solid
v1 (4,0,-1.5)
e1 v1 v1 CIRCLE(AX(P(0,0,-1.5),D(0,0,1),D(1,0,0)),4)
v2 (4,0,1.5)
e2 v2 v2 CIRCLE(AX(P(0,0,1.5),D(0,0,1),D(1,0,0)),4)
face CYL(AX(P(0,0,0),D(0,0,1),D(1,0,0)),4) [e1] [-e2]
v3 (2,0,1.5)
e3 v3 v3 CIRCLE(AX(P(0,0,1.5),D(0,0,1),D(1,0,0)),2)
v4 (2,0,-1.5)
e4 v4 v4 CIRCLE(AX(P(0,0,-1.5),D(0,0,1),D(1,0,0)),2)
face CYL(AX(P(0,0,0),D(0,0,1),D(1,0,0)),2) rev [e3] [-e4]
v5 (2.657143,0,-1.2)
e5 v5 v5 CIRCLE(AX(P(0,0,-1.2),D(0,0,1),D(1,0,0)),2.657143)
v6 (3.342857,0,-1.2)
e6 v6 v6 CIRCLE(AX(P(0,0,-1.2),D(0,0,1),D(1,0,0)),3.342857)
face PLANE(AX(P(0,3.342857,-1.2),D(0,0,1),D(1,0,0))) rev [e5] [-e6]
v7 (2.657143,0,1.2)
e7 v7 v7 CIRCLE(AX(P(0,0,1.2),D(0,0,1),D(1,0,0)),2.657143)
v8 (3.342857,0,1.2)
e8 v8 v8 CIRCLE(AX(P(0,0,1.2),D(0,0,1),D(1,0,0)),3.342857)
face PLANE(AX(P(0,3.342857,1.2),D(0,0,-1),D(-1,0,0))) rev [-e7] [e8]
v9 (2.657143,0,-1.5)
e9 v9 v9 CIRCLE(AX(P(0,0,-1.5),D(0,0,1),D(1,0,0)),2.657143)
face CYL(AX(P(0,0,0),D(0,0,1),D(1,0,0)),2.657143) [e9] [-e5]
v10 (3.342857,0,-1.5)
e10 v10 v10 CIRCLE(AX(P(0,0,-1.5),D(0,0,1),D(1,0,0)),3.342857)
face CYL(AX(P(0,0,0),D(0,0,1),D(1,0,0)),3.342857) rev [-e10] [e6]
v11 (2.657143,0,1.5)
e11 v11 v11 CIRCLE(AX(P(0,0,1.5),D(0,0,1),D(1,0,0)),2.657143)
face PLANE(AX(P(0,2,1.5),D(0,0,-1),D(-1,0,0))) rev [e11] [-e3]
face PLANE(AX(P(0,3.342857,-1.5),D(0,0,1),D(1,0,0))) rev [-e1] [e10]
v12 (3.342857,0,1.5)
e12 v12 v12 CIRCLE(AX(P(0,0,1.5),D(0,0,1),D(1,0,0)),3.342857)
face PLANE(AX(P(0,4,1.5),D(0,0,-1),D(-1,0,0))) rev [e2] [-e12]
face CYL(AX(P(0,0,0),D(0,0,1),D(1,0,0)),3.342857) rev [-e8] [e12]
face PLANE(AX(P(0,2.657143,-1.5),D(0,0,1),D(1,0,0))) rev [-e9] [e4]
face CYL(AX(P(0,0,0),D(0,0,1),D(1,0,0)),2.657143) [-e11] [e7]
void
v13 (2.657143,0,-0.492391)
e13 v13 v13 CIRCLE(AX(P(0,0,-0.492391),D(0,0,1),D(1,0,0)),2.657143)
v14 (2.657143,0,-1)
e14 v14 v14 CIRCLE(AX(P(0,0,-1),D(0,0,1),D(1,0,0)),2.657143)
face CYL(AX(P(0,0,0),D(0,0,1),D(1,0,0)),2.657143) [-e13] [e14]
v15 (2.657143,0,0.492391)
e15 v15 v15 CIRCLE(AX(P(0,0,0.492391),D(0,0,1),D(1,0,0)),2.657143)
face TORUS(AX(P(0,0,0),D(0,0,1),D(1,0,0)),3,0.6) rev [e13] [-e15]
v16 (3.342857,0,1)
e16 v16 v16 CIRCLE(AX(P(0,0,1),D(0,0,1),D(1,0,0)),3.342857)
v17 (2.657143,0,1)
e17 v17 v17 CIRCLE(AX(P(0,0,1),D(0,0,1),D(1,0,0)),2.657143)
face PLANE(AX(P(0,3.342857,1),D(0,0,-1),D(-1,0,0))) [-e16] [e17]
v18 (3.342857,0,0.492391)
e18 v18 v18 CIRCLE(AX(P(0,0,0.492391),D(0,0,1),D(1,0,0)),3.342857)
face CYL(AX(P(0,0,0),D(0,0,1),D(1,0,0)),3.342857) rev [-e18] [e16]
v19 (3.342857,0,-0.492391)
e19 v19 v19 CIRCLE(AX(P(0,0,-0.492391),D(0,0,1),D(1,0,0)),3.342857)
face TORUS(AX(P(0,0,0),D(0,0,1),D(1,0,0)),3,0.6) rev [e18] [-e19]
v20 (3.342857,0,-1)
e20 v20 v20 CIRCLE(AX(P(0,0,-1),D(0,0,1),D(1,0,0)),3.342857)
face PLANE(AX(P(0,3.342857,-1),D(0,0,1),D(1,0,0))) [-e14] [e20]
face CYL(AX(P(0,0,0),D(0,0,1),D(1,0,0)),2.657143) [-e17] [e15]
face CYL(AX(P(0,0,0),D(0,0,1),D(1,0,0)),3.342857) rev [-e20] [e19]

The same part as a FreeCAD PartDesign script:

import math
import FreeCAD as App
import Part
import Sketcher
Q = App.Units.Quantity

doc = App.newDocument("Part")
body = doc.addObject("PartDesign::Body", "Body")

sketch1 = doc.addObject("Sketcher::SketchObject", "Sketch")
body.addObject(sketch1)
sketch1.AttachmentSupport = (doc.YZ_Plane, [""])
sketch1.MapMode = "FlatFace"
sketch1.addGeometry([
    Part.LineSegment(App.Vector(2, 1.5, 0), App.Vector(2, -1.5, 0)),
    Part.LineSegment(App.Vector(2, -1.5, 0), App.Vector(2.66, -1.5, 0)),
    Part.LineSegment(App.Vector(2.66, -1.5, 0), App.Vector(2.66, -1.2, 0)),
    Part.LineSegment(App.Vector(2.66, -1.2, 0), App.Vector(3.34, -1.2, 0)),
    Part.LineSegment(App.Vector(3.34, -1.2, 0), App.Vector(3.34, -1.5, 0)),
    Part.LineSegment(App.Vector(3.34, -1.5, 0), App.Vector(4, -1.5, 0)),
    Part.LineSegment(App.Vector(4, -1.5, 0), App.Vector(4, 1.5, 0)),
    Part.LineSegment(App.Vector(4, 1.5, 0), App.Vector(3.34, 1.5, 0)),
    Part.LineSegment(App.Vector(3.34, 1.5, 0), App.Vector(3.34, 1.2, 0)),
    Part.LineSegment(App.Vector(3.34, 1.2, 0), App.Vector(2.66, 1.2, 0)),
    Part.LineSegment(App.Vector(2.66, 1.2, 0), App.Vector(2.66, 1.5, 0)),
    Part.LineSegment(App.Vector(2.66, 1.5, 0), App.Vector(2, 1.5, 0)),
    Part.LineSegment(App.Vector(3.34, -0.49, 0), App.Vector(3.34, -1, 0)),
    Part.LineSegment(App.Vector(3.34, -1, 0), App.Vector(2.66, -1, 0)),
    Part.LineSegment(App.Vector(2.66, -1, 0), App.Vector(2.66, -0.49, 0)),
    Part.ArcOfCircle(Part.Circle(App.Vector(3, 0, 0), App.Vector(0, 0, 1), 0.6), math.radians(125), math.radians(235)),
    Part.LineSegment(App.Vector(2.66, 0.49, 0), App.Vector(2.66, 1, 0)),
    Part.LineSegment(App.Vector(2.66, 1, 0), App.Vector(3.34, 1, 0)),
    Part.LineSegment(App.Vector(3.34, 1, 0), App.Vector(3.34, 0.49, 0)),
    Part.ArcOfCircle(Part.Circle(App.Vector(3, 0, 0), App.Vector(0, 0, 1), 0.6), math.radians(-55), math.radians(55)),
], False)
sketch1.addConstraint([
    Sketcher.Constraint("Coincident", 0, 2, 1, 1),
    Sketcher.Constraint("Coincident", 1, 2, 2, 1),
    Sketcher.Constraint("Coincident", 2, 2, 3, 1),
    Sketcher.Constraint("Coincident", 3, 2, 4, 1),
    Sketcher.Constraint("Coincident", 4, 2, 5, 1),
    Sketcher.Constraint("Coincident", 5, 2, 6, 1),
    Sketcher.Constraint("Coincident", 6, 2, 7, 1),
    Sketcher.Constraint("Coincident", 7, 2, 8, 1),
    Sketcher.Constraint("Coincident", 8, 2, 9, 1),
    Sketcher.Constraint("Coincident", 9, 2, 10, 1),
    Sketcher.Constraint("Coincident", 10, 2, 11, 1),
    Sketcher.Constraint("Coincident", 11, 2, 0, 1),
    Sketcher.Constraint("Coincident", 12, 2, 13, 1),
    Sketcher.Constraint("Coincident", 13, 2, 14, 1),
    Sketcher.Constraint("Coincident", 14, 2, 15, 2),
    Sketcher.Constraint("Coincident", 15, 1, 16, 1),
    Sketcher.Constraint("Coincident", 16, 2, 17, 1),
    Sketcher.Constraint("Coincident", 17, 2, 18, 1),
    Sketcher.Constraint("Coincident", 18, 2, 19, 2),
    Sketcher.Constraint("Coincident", 19, 1, 12, 1),
    Sketcher.Constraint("Vertical", 0),
    Sketcher.Constraint("Horizontal", 1),
    Sketcher.Constraint("Vertical", 2),
    Sketcher.Constraint("Horizontal", 3),
    Sketcher.Constraint("Vertical", 4),
    Sketcher.Constraint("Horizontal", 5),
    Sketcher.Constraint("Vertical", 6),
    Sketcher.Constraint("Horizontal", 7),
    Sketcher.Constraint("Vertical", 8),
    Sketcher.Constraint("Horizontal", 9),
    Sketcher.Constraint("Vertical", 10),
    Sketcher.Constraint("Horizontal", 11),
    Sketcher.Constraint("Vertical", 12),
    Sketcher.Constraint("Horizontal", 13),
    Sketcher.Constraint("Vertical", 14),
    Sketcher.Constraint("Vertical", 16),
    Sketcher.Constraint("Horizontal", 17),
    Sketcher.Constraint("Vertical", 18),
    Sketcher.Constraint("Coincident", 19, 3, 15, 3),
    Sketcher.Constraint("Equal", 15, 19),
    Sketcher.Constraint("Symmetric", 4, 2, 7, 2, -1),
    Sketcher.Constraint("Symmetric", 2, 2, 9, 2, -1),
    Sketcher.Constraint("Symmetric", 14, 2, 15, 1, -1),
    Sketcher.Constraint("Symmetric", 12, 2, 17, 2, -1),
    Sketcher.Constraint("Horizontal", 1, 2, 4, 2),
    Sketcher.Constraint("Horizontal", 7, 2, 10, 2),
    Sketcher.Constraint("Horizontal", 15, 1, 18, 2),
    Sketcher.Constraint("Vertical", 8, 2, 12, 2),
    Sketcher.Constraint("Vertical", 10, 2, 13, 2),
    Sketcher.Constraint("Equal", 1, 5),
    Sketcher.Constraint("Radius", 15, Q("0.6 mm")),
    Sketcher.Constraint("DistanceY", 0, 2, 0, 1, Q("3 mm")),
    Sketcher.Constraint("DistanceY", 2, 1, 2, 2, Q("0.3 mm")),
    Sketcher.Constraint("DistanceX", -1, 1, 15, 3, Q("3 mm")),
    Sketcher.Constraint("DistanceX", -1, 1, 0, 2, Q("2 mm")),
    Sketcher.Constraint("DistanceY", 12, 2, -1, 1, Q("1 mm")),
    Sketcher.Constraint("DistanceY", 12, 2, 12, 1, Q("0.507609 mm")),
])
revolution = doc.addObject("PartDesign::Revolution", "Revolution")
body.addObject(revolution)
revolution.Profile = sketch1
revolution.ReferenceAxis = (sketch1, ["V_Axis"])
revolution.Angle = 360

doc.recompute()
